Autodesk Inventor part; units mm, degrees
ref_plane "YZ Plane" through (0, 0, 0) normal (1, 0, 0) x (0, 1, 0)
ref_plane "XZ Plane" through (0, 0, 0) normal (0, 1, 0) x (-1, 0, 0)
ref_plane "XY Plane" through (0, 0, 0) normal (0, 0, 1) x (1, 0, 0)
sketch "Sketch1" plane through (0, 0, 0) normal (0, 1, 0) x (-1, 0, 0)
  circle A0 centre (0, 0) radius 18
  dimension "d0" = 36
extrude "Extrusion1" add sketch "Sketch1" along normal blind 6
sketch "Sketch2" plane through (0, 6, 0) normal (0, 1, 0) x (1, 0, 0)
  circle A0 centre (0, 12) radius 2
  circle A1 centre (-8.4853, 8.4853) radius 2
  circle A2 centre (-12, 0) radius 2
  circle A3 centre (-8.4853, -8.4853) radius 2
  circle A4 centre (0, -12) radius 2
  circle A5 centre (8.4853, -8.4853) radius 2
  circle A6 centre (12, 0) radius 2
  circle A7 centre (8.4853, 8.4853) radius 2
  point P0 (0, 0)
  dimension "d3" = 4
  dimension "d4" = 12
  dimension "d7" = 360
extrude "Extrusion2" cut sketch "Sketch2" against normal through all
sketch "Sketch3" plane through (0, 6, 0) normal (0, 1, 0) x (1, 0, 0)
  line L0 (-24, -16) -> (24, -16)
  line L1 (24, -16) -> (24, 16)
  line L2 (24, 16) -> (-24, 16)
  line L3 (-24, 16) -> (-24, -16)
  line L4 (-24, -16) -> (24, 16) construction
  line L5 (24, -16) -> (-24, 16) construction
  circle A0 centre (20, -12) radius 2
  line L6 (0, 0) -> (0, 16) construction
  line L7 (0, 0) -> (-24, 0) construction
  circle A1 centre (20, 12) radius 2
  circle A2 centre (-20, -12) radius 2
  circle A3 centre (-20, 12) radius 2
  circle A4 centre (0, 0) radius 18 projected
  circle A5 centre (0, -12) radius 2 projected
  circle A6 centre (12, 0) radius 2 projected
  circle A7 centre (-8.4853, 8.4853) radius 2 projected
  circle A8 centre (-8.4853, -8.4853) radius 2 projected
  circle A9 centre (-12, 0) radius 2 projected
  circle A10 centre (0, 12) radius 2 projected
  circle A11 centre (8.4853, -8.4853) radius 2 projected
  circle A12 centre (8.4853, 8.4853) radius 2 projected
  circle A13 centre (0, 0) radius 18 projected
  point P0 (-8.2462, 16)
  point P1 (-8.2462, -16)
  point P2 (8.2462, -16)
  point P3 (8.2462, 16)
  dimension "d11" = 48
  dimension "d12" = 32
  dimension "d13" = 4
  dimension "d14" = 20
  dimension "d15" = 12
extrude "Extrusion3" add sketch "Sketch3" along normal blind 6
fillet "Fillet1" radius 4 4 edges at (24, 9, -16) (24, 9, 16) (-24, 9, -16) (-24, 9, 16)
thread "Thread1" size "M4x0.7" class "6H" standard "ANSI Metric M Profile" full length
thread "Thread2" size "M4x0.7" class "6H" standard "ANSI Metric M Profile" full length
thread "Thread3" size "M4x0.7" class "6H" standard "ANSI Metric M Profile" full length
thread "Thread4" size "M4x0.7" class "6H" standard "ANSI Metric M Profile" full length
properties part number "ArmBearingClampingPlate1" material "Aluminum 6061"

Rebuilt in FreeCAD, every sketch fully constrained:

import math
import FreeCAD as App
import Part
import Sketcher

V = App.Vector


def edges_at(feature, points):
    """Names of the edges that pass closest to the given points."""
    edges = feature.Shape.Edges
    near = lambda p: min(range(len(edges)), key=lambda i: edges[i].distToShape(Part.Vertex(*p))[0])
    return sorted({f"Edge{near(p) + 1}" for p in points})

doc = App.newDocument("Part")
body = doc.addObject("PartDesign::Body", "Body")

# Sketch on XZ plane
sketch1 = body.newObject("Sketcher::SketchObject", "Sketch")
sketch1.AttachmentSupport = (doc.getObject("XZ_Plane"), [""])
sketch1.MapMode = "FlatFace"
sketch1.addGeometry(Part.Circle(V(0, 0, 0), V(0, 0, 1), 18), False)
sketch1.addConstraint([
    Sketcher.Constraint("Coincident", 0, 3, -1, 1),
    Sketcher.Constraint("Diameter", 0, 36.0),
])
pad1 = body.newObject("PartDesign::Pad", "Pad")
pad1.Profile = sketch1
pad1.Length = 6
pad1.Reversed = True

# Sketch on XZ plane
sketch2 = body.newObject("Sketcher::SketchObject", "Sketch001")
sketch2.AttachmentSupport = (doc.getObject("XZ_Plane"), [""])
sketch2.MapMode = "FlatFace"
sketch2.AttachmentOffset = App.Placement(V(0, 0, -6), App.Rotation())
sketch2.addGeometry([
    Part.Circle(V(0, -12, 0), V(0, 0, 1), 2),  # 0
    Part.Circle(V(-8.5, -8.5, 0), V(0, 0, 1), 2),  # 1
    Part.Circle(V(-12, 0, 0), V(0, 0, 1), 2),  # 2
    Part.Circle(V(-8.5, 8.5, 0), V(0, 0, 1), 2),  # 3
    Part.Circle(V(0, 12, 0), V(0, 0, 1), 2),  # 4
    Part.Circle(V(8.5, 8.5, 0), V(0, 0, 1), 2),  # 5
    Part.Circle(V(12, 0, 0), V(0, 0, 1), 2),  # 6
    Part.Circle(V(8.5, -8.5, 0), V(0, 0, 1), 2),  # 7
], False)
sketch2.addConstraint([
    Sketcher.Constraint("Equal", 0, 1),
    Sketcher.Constraint("Equal", 1, 2),
    Sketcher.Constraint("Equal", 2, 3),
    Sketcher.Constraint("Equal", 3, 4),
    Sketcher.Constraint("Equal", 4, 5),
    Sketcher.Constraint("Equal", 5, 6),
    Sketcher.Constraint("Equal", 6, 7),
    Sketcher.Constraint("Symmetric", 0, 3, 4, 3, -1, 1),
    Sketcher.Constraint("Symmetric", 1, 3, 5, 3, -1, 1),
    Sketcher.Constraint("Symmetric", 2, 3, 6, 3, -1, 1),
    Sketcher.Constraint("Symmetric", 3, 3, 7, 3, -1, 1),
    Sketcher.Constraint("Symmetric", 3, 3, 5, 3, -2),
    Sketcher.Constraint("PointOnObject", 0, 3, -2),
    Sketcher.Constraint("PointOnObject", 2, 3, -1),
    Sketcher.Constraint("Diameter", 0, 4.0),
    Sketcher.Constraint("DistanceY", 0, 3, -1, 1, 12.0),
    Sketcher.Constraint("DistanceX", 2, 3, -1, 1, 12.0),
    Sketcher.Constraint("DistanceX", 1, 3, -1, 1, 8.4853),
    Sketcher.Constraint("DistanceY", 1, 3, -1, 1, 8.4853),
])
pocket1 = body.newObject("PartDesign::Pocket", "Pocket")
pocket1.Profile = sketch2
pocket1.Type = "ThroughAll"
pocket1.Reversed = True

# Sketch on XZ plane
sketch3 = body.newObject("Sketcher::SketchObject", "Sketch002")
sketch3.AttachmentSupport = (doc.getObject("XZ_Plane"), [""])
sketch3.MapMode = "FlatFace"
sketch3.AttachmentOffset = App.Placement(V(0, 0, -6), App.Rotation())
sketch3.addGeometry([
    Part.LineSegment(V(-24, -16, 0), V(-24, 16, 0)),  # 0
    Part.LineSegment(V(-24, 16, 0), V(-8.2, 16, 0)),  # 1
    Part.ArcOfCircle(Part.Circle(V(0, 0, 0), V(0, 0, 1), 18), math.radians(63), math.radians(117)),  # 2
    Part.LineSegment(V(8.2, 16, 0), V(24, 16, 0)),  # 3
    Part.LineSegment(V(24, 16, 0), V(24, -16, 0)),  # 4
    Part.LineSegment(V(24, -16, 0), V(8.2, -16, 0)),  # 5
    Part.ArcOfCircle(Part.Circle(V(0, 0, 0), V(0, 0, 1), 18), math.radians(-117), math.radians(-63)),  # 6
    Part.LineSegment(V(-8.2, -16, 0), V(-24, -16, 0)),  # 7
    Part.Circle(V(-20, 12, 0), V(0, 0, 1), 2),  # 8
    Part.Circle(V(-20, -12, 0), V(0, 0, 1), 2),  # 9
    Part.Circle(V(0, -12, 0), V(0, 0, 1), 2),  # 10
    Part.Circle(V(-8.5, 8.5, 0), V(0, 0, 1), 2),  # 11
    Part.Circle(V(0, 12, 0), V(0, 0, 1), 2),  # 12
    Part.Circle(V(8.5, 8.5, 0), V(0, 0, 1), 2),  # 13
    Part.Circle(V(-12, 0, 0), V(0, 0, 1), 2),  # 14
    Part.Circle(V(-8.5, -8.5, 0), V(0, 0, 1), 2),  # 15
    Part.Circle(V(8.5, -8.5, 0), V(0, 0, 1), 2),  # 16
    Part.Circle(V(12, 0, 0), V(0, 0, 1), 2),  # 17
    Part.Circle(V(20, 12, 0), V(0, 0, 1), 2),  # 18
    Part.Circle(V(20, -12, 0), V(0, 0, 1), 2),  # 19
], False)
sketch3.addConstraint([
    Sketcher.Constraint("Coincident", 0, 2, 1, 1),
    Sketcher.Constraint("Coincident", 1, 2, 2, 2),
    Sketcher.Constraint("Coincident", 2, 1, 3, 1),
    Sketcher.Constraint("Coincident", 3, 2, 4, 1),
    Sketcher.Constraint("Coincident", 4, 2, 5, 1),
    Sketcher.Constraint("Coincident", 5, 2, 6, 2),
    Sketcher.Constraint("Coincident", 6, 1, 7, 1),
    Sketcher.Constraint("Coincident", 7, 2, 0, 1),
    Sketcher.Constraint("Vertical", 0),
    Sketcher.Constraint("Horizontal", 1),
    Sketcher.Constraint("Horizontal", 3),
    Sketcher.Constraint("Vertical", 4),
    Sketcher.Constraint("Horizontal", 5),
    Sketcher.Constraint("Horizontal", 7),
    Sketcher.Constraint("Coincident", 2, 3, -1, 1),
    Sketcher.Constraint("Coincident", 6, 3, -1, 1),
    Sketcher.Constraint("Equal", 2, 6),
    Sketcher.Constraint("Equal", 8, 9),
    Sketcher.Constraint("Equal", 9, 10),
    Sketcher.Constraint("Equal", 10, 11),
    Sketcher.Constraint("Equal", 11, 12),
    Sketcher.Constraint("Equal", 12, 13),
    Sketcher.Constraint("Equal", 13, 14),
    Sketcher.Constraint("Equal", 14, 15),
    Sketcher.Constraint("Equal", 15, 16),
    Sketcher.Constraint("Equal", 16, 17),
    Sketcher.Constraint("Equal", 17, 18),
    Sketcher.Constraint("Equal", 18, 19),
    Sketcher.Constraint("Symmetric", 10, 3, 12, 3, -1, 1),
    Sketcher.Constraint("Symmetric", 13, 3, 15, 3, -1, 1),
    Sketcher.Constraint("Symmetric", 11, 3, 16, 3, -1, 1),
    Sketcher.Constraint("Symmetric", 14, 3, 17, 3, -1, 1),
    Sketcher.Constraint("Symmetric", 9, 3, 18, 3, -1, 1),
    Sketcher.Constraint("Symmetric", 8, 3, 19, 3, -1, 1),
    Sketcher.Constraint("Symmetric", 0, 2, 4, 2, -1, 1),
    Sketcher.Constraint("Symmetric", 11, 3, 13, 3, -2),
    Sketcher.Constraint("Symmetric", 8, 3, 18, 3, -2),
    Sketcher.Constraint("PointOnObject", 10, 3, -2),
    Sketcher.Constraint("PointOnObject", 14, 3, -1),
    Sketcher.Constraint("Horizontal", 9, 3, 10, 3),
    Sketcher.Constraint("Horizontal", 1, 2, 2, 1),
    Sketcher.Constraint("Horizontal", 5, 2, 6, 1),
    Sketcher.Constraint("Diameter", 8, 4.0),
    Sketcher.Constraint("DistanceY", 0, 1, 0, 2, 32.0),
    Sketcher.Constraint("DistanceX", 8, 3, -1, 1, 20.0),
    Sketcher.Constraint("DistanceY", -1, 1, 8, 3, 12.0),
    Sketcher.Constraint("DistanceX", 14, 3, -1, 1, 12.0),
    Sketcher.Constraint("Radius", 2, 18.0),
    Sketcher.Constraint("DistanceX", 0, 2, 8, 3, 4.0),
    Sketcher.Constraint("DistanceX", 11, 3, 1, 2, 0.239),
    Sketcher.Constraint("DistanceY", -1, 1, 11, 3, 8.4853),
])
pad2 = body.newObject("PartDesign::Pad", "Pad001")
pad2.Profile = sketch3
pad2.Length = 6
pad2.Reversed = True
doc.recompute()

fillet = body.newObject("PartDesign::Fillet", "Fillet")
fillet.Base = (pad2, edges_at(pad2, [
    (24, 9, -16),
    (24, 9, 16),
    (-24, 9, -16),
    (-24, 9, 16),
]))
fillet.Radius = 4

doc.recompute()
